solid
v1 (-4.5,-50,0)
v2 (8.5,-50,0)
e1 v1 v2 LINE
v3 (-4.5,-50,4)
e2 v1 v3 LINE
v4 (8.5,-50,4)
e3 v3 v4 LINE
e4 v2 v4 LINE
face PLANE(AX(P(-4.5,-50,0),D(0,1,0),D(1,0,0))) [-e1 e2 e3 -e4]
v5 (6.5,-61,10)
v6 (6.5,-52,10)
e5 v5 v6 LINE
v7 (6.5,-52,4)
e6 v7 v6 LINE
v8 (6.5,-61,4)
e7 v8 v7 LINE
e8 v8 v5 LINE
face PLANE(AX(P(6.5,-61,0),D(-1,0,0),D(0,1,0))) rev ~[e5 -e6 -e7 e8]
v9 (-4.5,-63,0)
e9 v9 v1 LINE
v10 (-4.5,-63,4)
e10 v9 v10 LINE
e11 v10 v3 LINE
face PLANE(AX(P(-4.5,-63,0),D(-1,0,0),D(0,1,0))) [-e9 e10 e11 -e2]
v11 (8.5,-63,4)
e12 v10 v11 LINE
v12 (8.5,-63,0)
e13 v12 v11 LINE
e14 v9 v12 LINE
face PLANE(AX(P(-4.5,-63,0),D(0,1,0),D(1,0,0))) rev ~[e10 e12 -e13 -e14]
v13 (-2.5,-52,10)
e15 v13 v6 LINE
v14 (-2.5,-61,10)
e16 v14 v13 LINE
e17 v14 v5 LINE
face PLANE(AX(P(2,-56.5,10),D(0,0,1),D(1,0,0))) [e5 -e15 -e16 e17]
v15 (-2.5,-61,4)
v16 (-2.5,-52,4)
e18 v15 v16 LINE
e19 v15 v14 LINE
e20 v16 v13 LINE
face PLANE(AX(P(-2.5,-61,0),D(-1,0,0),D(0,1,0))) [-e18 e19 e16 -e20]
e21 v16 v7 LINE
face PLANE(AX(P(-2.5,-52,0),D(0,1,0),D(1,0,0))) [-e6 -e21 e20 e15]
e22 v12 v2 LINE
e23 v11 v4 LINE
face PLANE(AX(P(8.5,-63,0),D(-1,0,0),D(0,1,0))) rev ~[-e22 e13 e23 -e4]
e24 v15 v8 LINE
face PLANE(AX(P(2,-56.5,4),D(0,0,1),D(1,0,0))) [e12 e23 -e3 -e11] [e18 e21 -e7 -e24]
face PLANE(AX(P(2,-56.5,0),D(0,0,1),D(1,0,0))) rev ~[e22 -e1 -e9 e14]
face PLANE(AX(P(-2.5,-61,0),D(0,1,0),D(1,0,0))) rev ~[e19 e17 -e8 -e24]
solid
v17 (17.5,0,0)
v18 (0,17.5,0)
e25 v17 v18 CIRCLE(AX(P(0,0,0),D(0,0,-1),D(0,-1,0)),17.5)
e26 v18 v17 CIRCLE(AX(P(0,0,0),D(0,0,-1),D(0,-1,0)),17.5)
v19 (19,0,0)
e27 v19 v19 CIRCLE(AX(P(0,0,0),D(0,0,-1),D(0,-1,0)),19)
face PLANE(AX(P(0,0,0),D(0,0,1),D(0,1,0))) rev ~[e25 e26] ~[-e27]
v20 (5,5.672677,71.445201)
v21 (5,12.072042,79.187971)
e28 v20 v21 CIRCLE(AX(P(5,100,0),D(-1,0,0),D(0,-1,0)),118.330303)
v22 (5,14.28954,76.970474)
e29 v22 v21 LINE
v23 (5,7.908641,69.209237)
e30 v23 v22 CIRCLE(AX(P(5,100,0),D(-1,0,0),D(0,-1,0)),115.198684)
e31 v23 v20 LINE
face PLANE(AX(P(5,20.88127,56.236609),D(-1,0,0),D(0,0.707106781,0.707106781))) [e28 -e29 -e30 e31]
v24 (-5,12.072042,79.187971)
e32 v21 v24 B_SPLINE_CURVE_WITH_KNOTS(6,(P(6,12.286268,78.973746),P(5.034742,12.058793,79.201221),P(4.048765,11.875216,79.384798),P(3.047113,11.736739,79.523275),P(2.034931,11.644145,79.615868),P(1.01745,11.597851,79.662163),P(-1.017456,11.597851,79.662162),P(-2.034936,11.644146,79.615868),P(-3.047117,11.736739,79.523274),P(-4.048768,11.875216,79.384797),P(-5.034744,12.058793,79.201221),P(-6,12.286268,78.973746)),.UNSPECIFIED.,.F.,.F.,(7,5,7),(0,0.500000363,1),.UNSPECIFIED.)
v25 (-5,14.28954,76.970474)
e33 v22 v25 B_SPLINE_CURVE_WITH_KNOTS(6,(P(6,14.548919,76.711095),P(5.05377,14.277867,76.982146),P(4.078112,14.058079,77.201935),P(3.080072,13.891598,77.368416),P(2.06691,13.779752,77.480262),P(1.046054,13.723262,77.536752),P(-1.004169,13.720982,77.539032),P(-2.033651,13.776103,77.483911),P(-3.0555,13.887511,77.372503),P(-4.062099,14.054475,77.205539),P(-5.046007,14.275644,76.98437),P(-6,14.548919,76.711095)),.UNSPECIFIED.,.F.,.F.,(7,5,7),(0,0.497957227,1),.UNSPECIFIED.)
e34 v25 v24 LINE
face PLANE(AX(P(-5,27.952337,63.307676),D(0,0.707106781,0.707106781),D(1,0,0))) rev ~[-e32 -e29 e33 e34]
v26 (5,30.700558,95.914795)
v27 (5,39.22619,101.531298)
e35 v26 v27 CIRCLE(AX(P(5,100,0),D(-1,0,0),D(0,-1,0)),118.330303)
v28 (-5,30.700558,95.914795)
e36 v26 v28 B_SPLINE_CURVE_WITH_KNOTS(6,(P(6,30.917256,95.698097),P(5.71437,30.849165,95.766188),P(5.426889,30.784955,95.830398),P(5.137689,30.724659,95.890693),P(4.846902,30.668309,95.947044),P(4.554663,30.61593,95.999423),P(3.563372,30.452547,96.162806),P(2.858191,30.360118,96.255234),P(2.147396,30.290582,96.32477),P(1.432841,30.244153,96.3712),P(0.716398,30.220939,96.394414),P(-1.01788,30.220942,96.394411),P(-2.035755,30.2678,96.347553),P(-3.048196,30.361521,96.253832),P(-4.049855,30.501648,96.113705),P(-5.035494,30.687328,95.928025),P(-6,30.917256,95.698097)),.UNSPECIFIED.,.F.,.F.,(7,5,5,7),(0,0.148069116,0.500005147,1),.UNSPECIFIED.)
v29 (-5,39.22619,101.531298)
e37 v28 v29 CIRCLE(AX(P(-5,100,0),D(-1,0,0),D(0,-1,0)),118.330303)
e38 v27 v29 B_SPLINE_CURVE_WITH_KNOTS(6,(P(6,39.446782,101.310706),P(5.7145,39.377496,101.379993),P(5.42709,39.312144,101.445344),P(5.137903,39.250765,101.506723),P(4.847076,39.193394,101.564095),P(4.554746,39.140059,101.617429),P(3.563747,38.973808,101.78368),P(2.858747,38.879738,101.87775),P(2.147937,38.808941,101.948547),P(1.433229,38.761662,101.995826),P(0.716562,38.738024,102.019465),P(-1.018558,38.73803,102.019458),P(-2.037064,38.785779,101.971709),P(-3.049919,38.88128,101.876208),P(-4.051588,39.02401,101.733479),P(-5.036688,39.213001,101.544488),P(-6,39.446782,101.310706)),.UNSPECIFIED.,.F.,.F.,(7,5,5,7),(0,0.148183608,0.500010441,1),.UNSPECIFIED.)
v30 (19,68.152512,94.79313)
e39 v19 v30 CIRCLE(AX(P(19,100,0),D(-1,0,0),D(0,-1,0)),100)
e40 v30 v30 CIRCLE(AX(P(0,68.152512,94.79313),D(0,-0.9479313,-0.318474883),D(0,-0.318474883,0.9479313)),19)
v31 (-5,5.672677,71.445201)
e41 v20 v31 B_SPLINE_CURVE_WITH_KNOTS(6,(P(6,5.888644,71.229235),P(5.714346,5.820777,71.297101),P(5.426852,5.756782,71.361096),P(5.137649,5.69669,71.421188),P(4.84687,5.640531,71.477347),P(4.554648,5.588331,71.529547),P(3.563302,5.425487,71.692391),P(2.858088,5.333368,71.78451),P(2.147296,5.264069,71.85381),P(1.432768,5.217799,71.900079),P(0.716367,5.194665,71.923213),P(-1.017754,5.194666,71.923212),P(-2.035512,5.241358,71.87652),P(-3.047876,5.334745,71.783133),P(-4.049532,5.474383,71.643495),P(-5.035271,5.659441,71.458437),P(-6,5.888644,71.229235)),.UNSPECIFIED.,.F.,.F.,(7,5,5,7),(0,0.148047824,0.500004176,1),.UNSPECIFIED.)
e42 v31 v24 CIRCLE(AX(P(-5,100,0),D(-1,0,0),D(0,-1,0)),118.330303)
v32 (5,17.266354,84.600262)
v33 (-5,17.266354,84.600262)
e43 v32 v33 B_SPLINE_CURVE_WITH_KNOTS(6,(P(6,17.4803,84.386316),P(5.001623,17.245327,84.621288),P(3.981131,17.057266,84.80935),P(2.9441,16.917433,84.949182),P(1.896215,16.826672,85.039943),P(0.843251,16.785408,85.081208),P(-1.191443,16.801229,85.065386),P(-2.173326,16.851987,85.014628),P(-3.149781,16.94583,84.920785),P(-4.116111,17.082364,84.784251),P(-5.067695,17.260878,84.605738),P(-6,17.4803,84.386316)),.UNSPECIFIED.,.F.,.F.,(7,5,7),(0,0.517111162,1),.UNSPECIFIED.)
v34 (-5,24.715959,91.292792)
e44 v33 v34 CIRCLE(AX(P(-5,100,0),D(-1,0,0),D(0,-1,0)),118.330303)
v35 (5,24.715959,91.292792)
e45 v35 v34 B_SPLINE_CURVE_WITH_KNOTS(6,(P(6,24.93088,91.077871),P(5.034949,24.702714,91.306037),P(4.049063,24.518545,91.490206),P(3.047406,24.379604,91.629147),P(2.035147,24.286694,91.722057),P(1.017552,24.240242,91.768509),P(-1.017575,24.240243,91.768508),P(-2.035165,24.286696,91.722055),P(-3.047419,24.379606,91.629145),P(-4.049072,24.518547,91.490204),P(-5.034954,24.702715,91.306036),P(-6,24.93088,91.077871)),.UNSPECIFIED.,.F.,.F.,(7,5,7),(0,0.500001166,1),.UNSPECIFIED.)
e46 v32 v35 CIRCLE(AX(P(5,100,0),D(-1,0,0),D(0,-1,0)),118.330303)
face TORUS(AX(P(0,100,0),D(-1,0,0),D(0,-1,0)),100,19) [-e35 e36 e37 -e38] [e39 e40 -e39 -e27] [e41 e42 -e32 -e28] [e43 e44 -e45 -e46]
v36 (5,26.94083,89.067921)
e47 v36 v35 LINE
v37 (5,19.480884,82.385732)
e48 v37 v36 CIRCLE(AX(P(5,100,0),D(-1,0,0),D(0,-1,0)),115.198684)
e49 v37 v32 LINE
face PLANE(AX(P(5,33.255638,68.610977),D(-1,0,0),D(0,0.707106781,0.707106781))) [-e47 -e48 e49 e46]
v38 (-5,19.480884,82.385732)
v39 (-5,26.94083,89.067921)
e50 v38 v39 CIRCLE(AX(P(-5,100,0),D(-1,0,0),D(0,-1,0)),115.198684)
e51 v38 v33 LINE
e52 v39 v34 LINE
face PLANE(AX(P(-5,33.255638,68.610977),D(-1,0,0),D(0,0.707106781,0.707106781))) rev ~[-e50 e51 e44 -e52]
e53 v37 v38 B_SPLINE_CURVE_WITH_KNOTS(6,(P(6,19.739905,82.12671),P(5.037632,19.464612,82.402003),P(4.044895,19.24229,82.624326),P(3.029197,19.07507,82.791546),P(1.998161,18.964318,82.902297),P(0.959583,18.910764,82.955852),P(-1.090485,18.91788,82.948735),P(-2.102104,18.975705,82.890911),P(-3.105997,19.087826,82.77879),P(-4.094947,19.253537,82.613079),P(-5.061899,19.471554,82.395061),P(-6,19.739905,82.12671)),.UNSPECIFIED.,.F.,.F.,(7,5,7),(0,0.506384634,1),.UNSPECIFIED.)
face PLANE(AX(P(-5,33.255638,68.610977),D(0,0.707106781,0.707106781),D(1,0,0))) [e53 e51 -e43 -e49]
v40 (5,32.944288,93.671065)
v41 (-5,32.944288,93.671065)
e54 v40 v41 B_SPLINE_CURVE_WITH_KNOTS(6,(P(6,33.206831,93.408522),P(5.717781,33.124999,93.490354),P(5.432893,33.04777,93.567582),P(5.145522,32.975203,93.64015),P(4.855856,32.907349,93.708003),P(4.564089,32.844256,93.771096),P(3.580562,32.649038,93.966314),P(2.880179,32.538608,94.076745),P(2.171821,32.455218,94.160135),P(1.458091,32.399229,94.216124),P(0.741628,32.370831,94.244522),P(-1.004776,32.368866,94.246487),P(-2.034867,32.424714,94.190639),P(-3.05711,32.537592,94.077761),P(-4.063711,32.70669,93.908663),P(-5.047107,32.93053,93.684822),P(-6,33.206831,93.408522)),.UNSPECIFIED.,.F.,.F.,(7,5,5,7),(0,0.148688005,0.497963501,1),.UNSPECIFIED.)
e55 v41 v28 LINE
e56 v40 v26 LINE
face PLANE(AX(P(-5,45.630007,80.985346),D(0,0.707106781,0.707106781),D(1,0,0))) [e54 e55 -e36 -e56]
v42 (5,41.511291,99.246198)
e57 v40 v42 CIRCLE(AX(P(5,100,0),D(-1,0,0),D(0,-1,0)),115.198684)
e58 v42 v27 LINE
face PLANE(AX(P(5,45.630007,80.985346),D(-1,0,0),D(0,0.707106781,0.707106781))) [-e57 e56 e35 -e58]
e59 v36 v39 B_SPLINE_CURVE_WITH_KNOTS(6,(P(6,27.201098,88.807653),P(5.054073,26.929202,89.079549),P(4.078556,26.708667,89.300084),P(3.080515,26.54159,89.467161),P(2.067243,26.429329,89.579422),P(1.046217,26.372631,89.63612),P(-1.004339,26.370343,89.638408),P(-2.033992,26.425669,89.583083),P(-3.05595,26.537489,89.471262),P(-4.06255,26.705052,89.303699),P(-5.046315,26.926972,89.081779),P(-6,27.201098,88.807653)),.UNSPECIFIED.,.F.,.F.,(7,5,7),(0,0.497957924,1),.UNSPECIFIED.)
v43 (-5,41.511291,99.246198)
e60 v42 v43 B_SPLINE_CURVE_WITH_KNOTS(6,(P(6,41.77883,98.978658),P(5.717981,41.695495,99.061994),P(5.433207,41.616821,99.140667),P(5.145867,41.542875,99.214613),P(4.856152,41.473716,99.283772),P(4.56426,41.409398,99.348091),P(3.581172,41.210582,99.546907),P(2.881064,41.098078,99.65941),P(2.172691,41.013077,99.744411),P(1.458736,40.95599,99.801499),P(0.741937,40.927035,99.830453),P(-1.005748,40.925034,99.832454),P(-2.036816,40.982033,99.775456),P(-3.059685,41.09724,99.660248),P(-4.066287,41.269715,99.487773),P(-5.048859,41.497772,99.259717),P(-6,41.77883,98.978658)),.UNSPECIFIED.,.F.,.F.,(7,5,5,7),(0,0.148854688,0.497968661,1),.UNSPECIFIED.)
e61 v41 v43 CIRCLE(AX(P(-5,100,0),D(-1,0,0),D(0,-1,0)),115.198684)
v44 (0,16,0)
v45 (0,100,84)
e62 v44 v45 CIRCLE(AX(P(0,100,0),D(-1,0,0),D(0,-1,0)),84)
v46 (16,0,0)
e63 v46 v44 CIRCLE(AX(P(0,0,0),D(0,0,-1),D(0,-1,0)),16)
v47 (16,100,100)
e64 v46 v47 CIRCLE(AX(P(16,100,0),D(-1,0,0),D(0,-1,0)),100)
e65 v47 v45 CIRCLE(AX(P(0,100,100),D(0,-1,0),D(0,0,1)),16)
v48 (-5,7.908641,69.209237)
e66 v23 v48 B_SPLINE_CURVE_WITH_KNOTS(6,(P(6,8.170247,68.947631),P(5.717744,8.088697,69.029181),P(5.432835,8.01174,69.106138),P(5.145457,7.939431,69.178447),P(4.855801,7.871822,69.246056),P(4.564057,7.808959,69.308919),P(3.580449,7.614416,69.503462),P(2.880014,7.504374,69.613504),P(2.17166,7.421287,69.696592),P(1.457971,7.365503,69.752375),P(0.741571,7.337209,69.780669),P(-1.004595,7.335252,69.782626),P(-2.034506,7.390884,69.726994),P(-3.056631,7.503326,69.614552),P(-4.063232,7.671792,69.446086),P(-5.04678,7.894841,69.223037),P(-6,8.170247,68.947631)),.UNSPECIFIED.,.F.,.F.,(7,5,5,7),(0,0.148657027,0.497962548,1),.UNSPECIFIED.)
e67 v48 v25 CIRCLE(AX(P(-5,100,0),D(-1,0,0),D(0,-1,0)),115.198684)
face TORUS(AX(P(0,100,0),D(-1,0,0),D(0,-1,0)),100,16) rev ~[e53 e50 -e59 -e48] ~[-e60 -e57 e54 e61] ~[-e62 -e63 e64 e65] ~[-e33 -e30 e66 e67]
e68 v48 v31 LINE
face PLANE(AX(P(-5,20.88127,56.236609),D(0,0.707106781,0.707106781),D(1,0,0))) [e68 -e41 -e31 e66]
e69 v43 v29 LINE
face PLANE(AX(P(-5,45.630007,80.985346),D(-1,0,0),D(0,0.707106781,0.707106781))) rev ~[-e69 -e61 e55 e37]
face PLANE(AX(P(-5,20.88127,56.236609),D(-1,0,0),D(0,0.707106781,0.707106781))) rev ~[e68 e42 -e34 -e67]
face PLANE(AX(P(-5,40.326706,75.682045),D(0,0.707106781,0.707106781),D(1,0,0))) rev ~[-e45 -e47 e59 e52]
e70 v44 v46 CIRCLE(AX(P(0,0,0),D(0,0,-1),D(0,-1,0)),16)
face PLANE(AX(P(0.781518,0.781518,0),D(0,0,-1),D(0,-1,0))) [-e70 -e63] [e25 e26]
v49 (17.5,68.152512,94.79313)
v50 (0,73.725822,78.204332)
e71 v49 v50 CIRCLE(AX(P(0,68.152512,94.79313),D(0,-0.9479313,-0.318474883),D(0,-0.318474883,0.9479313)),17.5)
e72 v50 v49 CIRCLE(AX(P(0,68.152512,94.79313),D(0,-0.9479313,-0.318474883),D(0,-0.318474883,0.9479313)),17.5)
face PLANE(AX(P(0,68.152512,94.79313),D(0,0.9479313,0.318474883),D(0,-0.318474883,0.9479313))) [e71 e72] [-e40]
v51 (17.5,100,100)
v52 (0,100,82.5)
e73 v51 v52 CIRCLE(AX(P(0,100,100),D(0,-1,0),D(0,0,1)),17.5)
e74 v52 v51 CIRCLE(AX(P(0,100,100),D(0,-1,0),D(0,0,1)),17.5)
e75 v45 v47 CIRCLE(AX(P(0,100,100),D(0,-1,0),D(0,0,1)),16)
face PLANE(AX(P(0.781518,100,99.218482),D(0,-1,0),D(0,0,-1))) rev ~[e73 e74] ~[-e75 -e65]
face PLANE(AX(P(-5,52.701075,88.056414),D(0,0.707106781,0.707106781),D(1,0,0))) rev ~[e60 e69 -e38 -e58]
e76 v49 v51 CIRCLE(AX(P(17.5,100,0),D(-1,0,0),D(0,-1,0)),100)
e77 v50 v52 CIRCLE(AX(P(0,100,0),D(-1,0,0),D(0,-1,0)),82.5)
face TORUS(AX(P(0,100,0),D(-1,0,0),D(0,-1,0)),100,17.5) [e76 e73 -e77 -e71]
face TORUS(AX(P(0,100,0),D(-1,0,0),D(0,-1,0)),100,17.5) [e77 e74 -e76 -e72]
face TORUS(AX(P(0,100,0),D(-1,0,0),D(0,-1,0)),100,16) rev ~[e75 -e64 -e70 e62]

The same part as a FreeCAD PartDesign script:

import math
import FreeCAD as App
import Part
import Sketcher
from FreeCAD import Vector
Q = App.Units.Quantity

doc = App.newDocument("Part")
body = doc.addObject("PartDesign::Body", "Body")

# Sketch on XZ plane
sketch1 = doc.addObject("Sketcher::SketchObject", "Sketch")
body.addObject(sketch1)
sketch1.AttachmentSupport = (doc.XZ_Plane, [""])
sketch1.MapMode = "FlatFace"
sketch1.AttachmentOffset = App.Placement(Vector(0, 0, -100), App.Rotation())
sketch1.addGeometry([
    Part.ArcOfCircle(Part.Circle(Vector(0, 100, 0), Vector(0, 0, 1), 17.5), math.radians(0), math.radians(270)),
    Part.ArcOfCircle(Part.Circle(Vector(0, 100, 0), Vector(0, 0, 1), 17.5), math.radians(-90), math.radians(0)),
    Part.ArcOfCircle(Part.Circle(Vector(0, 100, 0), Vector(0, 0, 1), 16), math.radians(0), math.radians(270)),
    Part.ArcOfCircle(Part.Circle(Vector(0, 100, 0), Vector(0, 0, 1), 16), math.radians(-90), math.radians(0)),
], False)
sketch1.addConstraint([
    Sketcher.Constraint("Tangent", 0, 1, 1, 2),
    Sketcher.Constraint("Coincident", 1, 1, 0, 2),
    Sketcher.Constraint("Tangent", 2, 1, 3, 2),
    Sketcher.Constraint("Coincident", 3, 1, 2, 2),
    Sketcher.Constraint("Coincident", 2, 3, 0, 3),
    Sketcher.Constraint("PointOnObject", 0, 3, -2),
    Sketcher.Constraint("PointOnObject", 1, 1, -2),
    Sketcher.Constraint("PointOnObject", 3, 1, -2),
    Sketcher.Constraint("Horizontal", 3, 3, 0, 1),
    Sketcher.Constraint("Horizontal", 0, 1, 2, 1),
    Sketcher.Constraint("Radius", 2, Q("16 mm")),
    Sketcher.Constraint("Radius", 0, Q("17.5 mm")),
    Sketcher.Constraint("DistanceY", -1, 1, 0, 3, Q("100 mm")),
])

# Sketch on YZ plane
sketch2 = doc.addObject("Sketcher::SketchObject", "Sketch001")
body.addObject(sketch2)
sketch2.AttachmentSupport = (doc.YZ_Plane, [""])
sketch2.MapMode = "FlatFace"
sketch2.addGeometry(Part.ArcOfCircle(Part.Circle(Vector(100, 0, 0), Vector(0, 0, 1), 100), math.radians(90), math.radians(180)), False)
sketch2.addConstraint([
    Sketcher.Constraint("Coincident", 0, 2, -1, 1),
    Sketcher.Constraint("PointOnObject", 0, 3, -1),
    Sketcher.Constraint("Radius", 0, Q("100 mm")),
    Sketcher.Constraint("DistanceX", -1, 1, 0, 1, Q("100 mm")),
])
doc.recompute()

additivepipe = doc.addObject("PartDesign::AdditivePipe", "AdditivePipe")
body.addObject(additivepipe)
additivepipe.Profile = sketch1
additivepipe.Spine = (sketch2, ["Edge1"])

# Sketch on XY plane
sketch3 = doc.addObject("Sketcher::SketchObject", "Sketch002")
body.addObject(sketch3)
sketch3.AttachmentSupport = (doc.XY_Plane, [""])
sketch3.MapMode = "FlatFace"
sketch3.addGeometry([
    Part.Circle(Vector(0, 0, 0), Vector(0, 0, 1), 19),
    Part.Circle(Vector(0, 0, 0), Vector(0, 0, 1), 17.5),
], False)
sketch3.addConstraint([
    Sketcher.Constraint("Coincident", 0, 3, -1, 1),
    Sketcher.Constraint("Coincident", 1, 3, -1, 1),
    Sketcher.Constraint("Diameter", 0, Q("38 mm")),
    Sketcher.Constraint("Diameter", 1, Q("35 mm")),
])

# Sketch on YZ plane
sketch4 = doc.addObject("Sketcher::SketchObject", "Sketch003")
body.addObject(sketch4)
sketch4.AttachmentSupport = (doc.YZ_Plane, [""])
sketch4.MapMode = "FlatFace"
sketch4.addGeometry(Part.ArcOfCircle(Part.Circle(Vector(100, 0, 0), Vector(0, 0, 1), 100), math.radians(108.570717), math.radians(180)), False)
sketch4.addConstraint([
    Sketcher.Constraint("Coincident", 0, 2, -1, 1),
    Sketcher.Constraint("PointOnObject", 0, 3, -1),
    Sketcher.Constraint("Radius", 0, Q("100 mm")),
    Sketcher.Constraint("DistanceX", -1, 1, 0, 1, Q("68.152512 mm")),
])
doc.recompute()

additivepipe2 = doc.addObject("PartDesign::AdditivePipe", "AdditivePipe001")
body.addObject(additivepipe2)
additivepipe2.Profile = sketch3
additivepipe2.Spine = (sketch4, ["Edge1"])

# Sketch on an angled plane
sketch5 = doc.addObject("Sketcher::SketchObject", "Sketch004")
body.addObject(sketch5)
sketch5.Placement = App.Placement(Vector(0, -17.67767, 17.67767), App.Rotation(Vector(1, 0, 0), Vector(0, 0.707106781, 0.707106781), Vector(0, -0.707106781, 0.707106781), "ZXY"))
sketch5.addGeometry([
    Part.LineSegment(Vector(-5, 99.530574, 0), Vector(-5, 89.530574, 0)),  # 0
    Part.LineSegment(Vector(-5, 89.530574, 0), Vector(5, 89.530574, 0)),  # 1
    Part.LineSegment(Vector(5, 89.530574, 0), Vector(5, 99.530574, 0)),  # 2
    Part.LineSegment(Vector(5, 99.530574, 0), Vector(-5, 99.530574, 0)),  # 3
    Part.LineSegment(Vector(-5, 82.030574, 0), Vector(-5, 72.030574, 0)),  # 4
    Part.LineSegment(Vector(-5, 72.030574, 0), Vector(5, 72.030574, 0)),  # 5
    Part.LineSegment(Vector(5, 72.030574, 0), Vector(5, 82.030574, 0)),  # 6
    Part.LineSegment(Vector(5, 82.030574, 0), Vector(-5, 82.030574, 0)),  # 7
    Part.LineSegment(Vector(-5, 64.530574, 0), Vector(-5, 54.530575, 0)),  # 8
    Part.LineSegment(Vector(-5, 54.530575, 0), Vector(5, 54.530575, 0)),  # 9
    Part.LineSegment(Vector(5, 54.530575, 0), Vector(5, 64.530574, 0)),  # 10
    Part.LineSegment(Vector(5, 64.530574, 0), Vector(-5, 64.530574, 0)),  # 11
], False)
sketch5.addConstraint([
    Sketcher.Constraint("Coincident", 0, 2, 1, 1),
    Sketcher.Constraint("Coincident", 1, 2, 2, 1),
    Sketcher.Constraint("Coincident", 2, 2, 3, 1),
    Sketcher.Constraint("Coincident", 3, 2, 0, 1),
    Sketcher.Constraint("Coincident", 4, 2, 5, 1),
    Sketcher.Constraint("Coincident", 5, 2, 6, 1),
    Sketcher.Constraint("Coincident", 6, 2, 7, 1),
    Sketcher.Constraint("Coincident", 7, 2, 4, 1),
    Sketcher.Constraint("Coincident", 8, 2, 9, 1),
    Sketcher.Constraint("Coincident", 9, 2, 10, 1),
    Sketcher.Constraint("Coincident", 10, 2, 11, 1),
    Sketcher.Constraint("Coincident", 11, 2, 8, 1),
    Sketcher.Constraint("Vertical", 0),
    Sketcher.Constraint("Horizontal", 1),
    Sketcher.Constraint("Vertical", 2),
    Sketcher.Constraint("Horizontal", 3),
    Sketcher.Constraint("Vertical", 4),
    Sketcher.Constraint("Horizontal", 5),
    Sketcher.Constraint("Vertical", 6),
    Sketcher.Constraint("Horizontal", 7),
    Sketcher.Constraint("Vertical", 8),
    Sketcher.Constraint("Horizontal", 9),
    Sketcher.Constraint("Vertical", 10),
    Sketcher.Constraint("Horizontal", 11),
    Sketcher.Constraint("Vertical", 3, 2, 4, 2),
    Sketcher.Constraint("Vertical", 2, 2, 5, 2),
    Sketcher.Constraint("Vertical", 7, 2, 8, 2),
    Sketcher.Constraint("Vertical", 6, 2, 9, 2),
    Sketcher.Constraint("Equal", 11, 0),
    Sketcher.Constraint("Equal", 2, 4),
    Sketcher.Constraint("Equal", 6, 8),
    Sketcher.Constraint("DistanceX", 1, 1, 1, 2, Q("10 mm")),
    Sketcher.Constraint("DistanceX", 0, 2, -1, 1, Q("5 mm")),
    Sketcher.Constraint("DistanceY", 8, 2, 0, 2, Q("35 mm")),
    Sketcher.Constraint("DistanceY", 4, 2, 0, 2, Q("17.5 mm")),
    Sketcher.Constraint("DistanceY", -1, 1, 0, 2, Q("89.530574 mm")),
])
pocket1 = doc.addObject("PartDesign::Pocket", "Pocket")
body.addObject(pocket1)
pocket1.Profile = sketch5
pocket1.Length = 25
pocket1.Reversed = True
body2 = doc.addObject("PartDesign::Body", "Body001")

# Sketch on XY plane
sketch6 = doc.addObject("Sketcher::SketchObject", "Sketch005")
body2.addObject(sketch6)
sketch6.AttachmentSupport = (doc.getObject("XY_Plane001"), [""])
sketch6.MapMode = "FlatFace"
sketch6.addGeometry([
    Part.LineSegment(Vector(-2.5, -52, 0), Vector(-2.5, -61, 0)),
    Part.LineSegment(Vector(-2.5, -61, 0), Vector(6.5, -61, 0)),
    Part.LineSegment(Vector(6.5, -61, 0), Vector(6.5, -52, 0)),
    Part.LineSegment(Vector(6.5, -52, 0), Vector(-2.5, -52, 0)),
], False)
sketch6.addConstraint([
    Sketcher.Constraint("Coincident", 0, 2, 1, 1),
    Sketcher.Constraint("Coincident", 1, 2, 2, 1),
    Sketcher.Constraint("Coincident", 2, 2, 3, 1),
    Sketcher.Constraint("Coincident", 3, 2, 0, 1),
    Sketcher.Constraint("Vertical", 0),
    Sketcher.Constraint("Horizontal", 1),
    Sketcher.Constraint("Vertical", 2),
    Sketcher.Constraint("Horizontal", 3),
    Sketcher.Constraint("Equal", 3, 0),
    Sketcher.Constraint("DistanceX", 1, 1, 1, 2, Q("9 mm")),
    Sketcher.Constraint("DistanceY", 0, 2, -1, 1, Q("61 mm")),
    Sketcher.Constraint("DistanceX", 0, 2, -1, 1, Q("2.5 mm")),
])
pad1 = doc.addObject("PartDesign::Pad", "Pad")
body2.addObject(pad1)
pad1.Profile = sketch6
pad1.Length = 10

# Sketch on XY plane
sketch7 = doc.addObject("Sketcher::SketchObject", "Sketch006")
body2.addObject(sketch7)
sketch7.AttachmentSupport = (doc.getObject("XY_Plane001"), [""])
sketch7.MapMode = "FlatFace"
sketch7.addGeometry([
    Part.LineSegment(Vector(-4.5, -50, 0), Vector(-4.5, -63, 0)),  # 0
    Part.LineSegment(Vector(-4.5, -63, 0), Vector(8.5, -63, 0)),  # 1
    Part.LineSegment(Vector(8.5, -63, 0), Vector(8.5, -50, 0)),  # 2
    Part.LineSegment(Vector(8.5, -50, 0), Vector(-4.5, -50, 0)),  # 3
    Part.LineSegment(Vector(6.5, -61, 0), Vector(-2.5, -61, 0)),  # 4
    Part.LineSegment(Vector(-2.5, -61, 0), Vector(-2.5, -52, 0)),  # 5
    Part.LineSegment(Vector(-2.5, -52, 0), Vector(6.5, -52, 0)),  # 6
    Part.LineSegment(Vector(6.5, -52, 0), Vector(6.5, -61, 0)),  # 7
], False)
sketch7.addConstraint([
    Sketcher.Constraint("Coincident", 0, 2, 1, 1),
    Sketcher.Constraint("Coincident", 1, 2, 2, 1),
    Sketcher.Constraint("Coincident", 2, 2, 3, 1),
    Sketcher.Constraint("Coincident", 3, 2, 0, 1),
    Sketcher.Constraint("Coincident", 4, 2, 5, 1),
    Sketcher.Constraint("Coincident", 5, 2, 6, 1),
    Sketcher.Constraint("Coincident", 6, 2, 7, 1),
    Sketcher.Constraint("Coincident", 7, 2, 4, 1),
    Sketcher.Constraint("Vertical", 0),
    Sketcher.Constraint("Horizontal", 1),
    Sketcher.Constraint("Vertical", 2),
    Sketcher.Constraint("Horizontal", 3),
    Sketcher.Constraint("Horizontal", 4),
    Sketcher.Constraint("Vertical", 5),
    Sketcher.Constraint("Horizontal", 6),
    Sketcher.Constraint("Vertical", 7),
    Sketcher.Constraint("Equal", 3, 0),
    Sketcher.Constraint("Equal", 6, 5),
    Sketcher.Constraint("DistanceX", 1, 1, 1, 2, Q("13 mm")),
    Sketcher.Constraint("DistanceX", 4, 2, 4, 1, Q("9 mm")),
    Sketcher.Constraint("DistanceY", 0, 2, -1, 1, Q("63 mm")),
    Sketcher.Constraint("DistanceY", 4, 2, -1, 1, Q("61 mm")),
    Sketcher.Constraint("DistanceX", 0, 2, 4, 2, Q("2 mm")),
    Sketcher.Constraint("DistanceX", 0, 2, -1, 1, Q("4.5 mm")),
])
pad2 = doc.addObject("PartDesign::Pad", "Pad001")
body2.addObject(pad2)
pad2.Profile = sketch7
pad2.Length = 4

doc.recompute()
